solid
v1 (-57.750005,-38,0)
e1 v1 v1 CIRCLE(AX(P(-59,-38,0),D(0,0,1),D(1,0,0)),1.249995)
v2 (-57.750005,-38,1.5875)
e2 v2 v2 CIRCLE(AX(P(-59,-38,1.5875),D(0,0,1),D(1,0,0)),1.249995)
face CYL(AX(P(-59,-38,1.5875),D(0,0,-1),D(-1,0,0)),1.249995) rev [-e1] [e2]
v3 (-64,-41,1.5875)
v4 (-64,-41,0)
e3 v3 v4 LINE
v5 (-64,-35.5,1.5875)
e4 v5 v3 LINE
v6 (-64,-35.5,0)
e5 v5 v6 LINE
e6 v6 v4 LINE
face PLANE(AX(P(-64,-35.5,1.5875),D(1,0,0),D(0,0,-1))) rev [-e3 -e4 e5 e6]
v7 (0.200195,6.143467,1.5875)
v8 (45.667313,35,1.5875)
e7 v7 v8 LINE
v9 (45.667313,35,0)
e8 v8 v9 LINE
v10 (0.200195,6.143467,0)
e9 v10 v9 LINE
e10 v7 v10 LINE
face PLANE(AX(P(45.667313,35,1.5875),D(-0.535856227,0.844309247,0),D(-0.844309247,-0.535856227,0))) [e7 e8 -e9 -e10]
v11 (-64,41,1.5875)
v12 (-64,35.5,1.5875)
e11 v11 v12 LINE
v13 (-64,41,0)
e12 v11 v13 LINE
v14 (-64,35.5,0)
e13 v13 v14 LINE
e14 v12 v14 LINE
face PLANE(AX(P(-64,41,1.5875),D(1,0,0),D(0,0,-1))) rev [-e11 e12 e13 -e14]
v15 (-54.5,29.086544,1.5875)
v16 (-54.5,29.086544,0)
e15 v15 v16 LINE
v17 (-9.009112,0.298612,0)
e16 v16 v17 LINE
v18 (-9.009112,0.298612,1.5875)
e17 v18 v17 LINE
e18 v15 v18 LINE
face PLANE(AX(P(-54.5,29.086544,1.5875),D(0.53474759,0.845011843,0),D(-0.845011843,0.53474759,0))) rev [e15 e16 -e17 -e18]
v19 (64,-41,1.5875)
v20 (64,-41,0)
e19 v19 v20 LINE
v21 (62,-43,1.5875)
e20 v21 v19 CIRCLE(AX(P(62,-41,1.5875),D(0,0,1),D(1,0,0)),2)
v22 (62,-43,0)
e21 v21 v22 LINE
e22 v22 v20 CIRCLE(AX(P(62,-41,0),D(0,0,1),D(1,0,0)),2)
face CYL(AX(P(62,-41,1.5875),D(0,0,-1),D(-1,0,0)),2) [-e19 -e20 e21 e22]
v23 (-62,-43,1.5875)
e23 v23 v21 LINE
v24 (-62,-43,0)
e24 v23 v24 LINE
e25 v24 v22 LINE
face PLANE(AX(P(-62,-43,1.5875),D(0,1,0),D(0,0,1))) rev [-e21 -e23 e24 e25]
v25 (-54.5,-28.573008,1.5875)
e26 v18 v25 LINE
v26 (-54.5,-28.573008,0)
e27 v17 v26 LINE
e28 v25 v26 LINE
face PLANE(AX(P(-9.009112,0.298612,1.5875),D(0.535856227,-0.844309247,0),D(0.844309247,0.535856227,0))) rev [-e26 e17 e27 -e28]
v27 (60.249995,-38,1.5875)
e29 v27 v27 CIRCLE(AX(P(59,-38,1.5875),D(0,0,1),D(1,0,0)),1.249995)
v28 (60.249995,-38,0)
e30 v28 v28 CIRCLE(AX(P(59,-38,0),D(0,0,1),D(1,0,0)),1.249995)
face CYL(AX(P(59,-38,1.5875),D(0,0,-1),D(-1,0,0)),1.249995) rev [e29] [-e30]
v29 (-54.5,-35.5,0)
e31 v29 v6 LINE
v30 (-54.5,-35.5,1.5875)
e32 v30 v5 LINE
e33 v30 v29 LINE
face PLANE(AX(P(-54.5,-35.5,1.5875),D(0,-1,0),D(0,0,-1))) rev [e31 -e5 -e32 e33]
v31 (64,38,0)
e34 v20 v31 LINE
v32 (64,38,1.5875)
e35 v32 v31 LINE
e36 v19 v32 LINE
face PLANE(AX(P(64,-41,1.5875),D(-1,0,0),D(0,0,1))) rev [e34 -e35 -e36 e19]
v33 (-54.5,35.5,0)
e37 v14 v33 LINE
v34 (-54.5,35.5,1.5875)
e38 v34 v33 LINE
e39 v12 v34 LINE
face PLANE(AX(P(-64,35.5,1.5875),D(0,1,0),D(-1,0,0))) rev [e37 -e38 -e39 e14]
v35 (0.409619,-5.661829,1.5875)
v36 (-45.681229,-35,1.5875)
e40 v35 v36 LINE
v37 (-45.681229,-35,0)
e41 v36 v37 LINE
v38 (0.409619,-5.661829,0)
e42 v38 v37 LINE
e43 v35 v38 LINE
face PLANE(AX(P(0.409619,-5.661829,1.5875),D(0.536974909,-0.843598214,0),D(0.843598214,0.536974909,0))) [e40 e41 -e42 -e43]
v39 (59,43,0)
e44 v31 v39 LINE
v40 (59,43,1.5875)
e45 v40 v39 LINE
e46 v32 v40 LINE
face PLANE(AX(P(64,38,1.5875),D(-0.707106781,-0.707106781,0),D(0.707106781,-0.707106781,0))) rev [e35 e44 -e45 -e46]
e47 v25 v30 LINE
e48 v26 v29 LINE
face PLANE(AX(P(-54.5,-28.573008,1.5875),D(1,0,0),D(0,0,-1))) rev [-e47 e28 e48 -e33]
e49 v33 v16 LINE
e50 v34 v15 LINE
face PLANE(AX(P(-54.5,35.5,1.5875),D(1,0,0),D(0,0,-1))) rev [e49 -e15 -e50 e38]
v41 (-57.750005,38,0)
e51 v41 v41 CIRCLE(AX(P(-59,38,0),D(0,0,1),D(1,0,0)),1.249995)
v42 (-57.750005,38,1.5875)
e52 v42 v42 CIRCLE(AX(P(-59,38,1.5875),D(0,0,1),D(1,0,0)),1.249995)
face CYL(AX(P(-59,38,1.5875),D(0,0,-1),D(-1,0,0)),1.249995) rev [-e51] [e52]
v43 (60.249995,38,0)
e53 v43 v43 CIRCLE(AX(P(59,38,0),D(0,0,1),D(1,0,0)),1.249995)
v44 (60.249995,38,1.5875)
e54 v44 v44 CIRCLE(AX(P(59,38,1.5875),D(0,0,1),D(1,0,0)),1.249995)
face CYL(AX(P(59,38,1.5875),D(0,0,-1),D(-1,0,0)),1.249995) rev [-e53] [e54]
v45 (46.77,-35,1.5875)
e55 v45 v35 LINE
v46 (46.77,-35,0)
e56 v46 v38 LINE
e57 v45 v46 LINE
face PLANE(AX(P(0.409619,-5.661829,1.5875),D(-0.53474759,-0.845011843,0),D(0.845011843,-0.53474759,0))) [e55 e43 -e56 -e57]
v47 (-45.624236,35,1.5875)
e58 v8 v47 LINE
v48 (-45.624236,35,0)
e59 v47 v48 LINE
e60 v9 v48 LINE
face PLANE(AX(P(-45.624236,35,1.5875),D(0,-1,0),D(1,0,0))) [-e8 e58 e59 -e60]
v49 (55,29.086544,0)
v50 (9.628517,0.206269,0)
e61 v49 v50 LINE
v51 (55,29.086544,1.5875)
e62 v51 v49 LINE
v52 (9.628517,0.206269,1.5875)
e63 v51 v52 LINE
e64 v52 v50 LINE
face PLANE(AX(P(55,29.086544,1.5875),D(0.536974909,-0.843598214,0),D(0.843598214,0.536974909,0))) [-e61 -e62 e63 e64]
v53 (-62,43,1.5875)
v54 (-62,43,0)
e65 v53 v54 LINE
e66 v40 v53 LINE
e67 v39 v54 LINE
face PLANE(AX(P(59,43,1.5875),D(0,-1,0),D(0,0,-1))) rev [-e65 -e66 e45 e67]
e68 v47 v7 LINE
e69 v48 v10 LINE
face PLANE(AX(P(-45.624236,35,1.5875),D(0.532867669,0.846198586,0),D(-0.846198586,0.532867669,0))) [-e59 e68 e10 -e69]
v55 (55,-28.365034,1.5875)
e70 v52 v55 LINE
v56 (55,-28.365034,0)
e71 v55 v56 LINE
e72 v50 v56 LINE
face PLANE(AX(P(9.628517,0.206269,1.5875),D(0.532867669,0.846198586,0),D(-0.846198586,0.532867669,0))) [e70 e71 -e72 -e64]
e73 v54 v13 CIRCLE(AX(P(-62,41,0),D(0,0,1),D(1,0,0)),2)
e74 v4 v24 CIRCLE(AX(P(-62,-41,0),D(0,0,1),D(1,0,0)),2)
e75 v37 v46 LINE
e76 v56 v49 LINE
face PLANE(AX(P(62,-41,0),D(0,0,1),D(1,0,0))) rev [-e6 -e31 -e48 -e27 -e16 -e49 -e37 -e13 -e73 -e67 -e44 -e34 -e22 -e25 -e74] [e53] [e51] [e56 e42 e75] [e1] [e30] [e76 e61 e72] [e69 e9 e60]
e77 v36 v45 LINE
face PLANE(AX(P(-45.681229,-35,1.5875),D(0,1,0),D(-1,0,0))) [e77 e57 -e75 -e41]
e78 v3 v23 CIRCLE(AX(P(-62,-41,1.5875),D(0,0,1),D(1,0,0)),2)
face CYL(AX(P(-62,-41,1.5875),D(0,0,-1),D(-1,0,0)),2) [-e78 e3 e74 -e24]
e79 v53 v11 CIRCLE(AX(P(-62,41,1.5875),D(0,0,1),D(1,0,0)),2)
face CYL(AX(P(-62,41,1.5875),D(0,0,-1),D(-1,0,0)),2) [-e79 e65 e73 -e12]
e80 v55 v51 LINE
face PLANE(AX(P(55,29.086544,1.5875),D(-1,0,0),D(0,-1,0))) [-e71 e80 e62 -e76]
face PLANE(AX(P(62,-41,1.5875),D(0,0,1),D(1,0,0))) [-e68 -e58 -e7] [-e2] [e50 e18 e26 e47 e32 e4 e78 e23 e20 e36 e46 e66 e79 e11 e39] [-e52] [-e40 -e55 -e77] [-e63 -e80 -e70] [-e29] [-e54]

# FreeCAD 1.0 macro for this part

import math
import FreeCAD as App
import Part
import Sketcher
from FreeCAD import Vector
Q = App.Units.Quantity


def add_polygon(sketch, points):
    """Adds a closed chain of lines whose ends are joined by coincident constraints."""
    first, n = sketch.GeometryCount, len(points)
    for a, b in zip(points, points[1:] + points[:1]):
        sketch.addGeometry(Part.LineSegment(App.Vector(*a, 0), App.Vector(*b, 0)), False)
    for i in range(n):
        sketch.addConstraint(Sketcher.Constraint("Coincident", first + i, 2, first + (i + 1) % n, 1))

doc = App.newDocument("Part")
body = doc.addObject("PartDesign::Body", "Body")

# Sketch on XY plane
sketch1 = body.newObject("Sketcher::SketchObject", "Sketch")
sketch1.AttachmentSupport = (doc.getObject("XY_Plane"), [""])
sketch1.MapMode = "FlatFace"
sketch1.addGeometry(Part.LineSegment(Vector(64, -41, 0), Vector(64, 38, 0)), False)  # 0
sketch1.addGeometry(Part.LineSegment(Vector(64, 38, 0), Vector(59, 43, 0)), False)  # 1
sketch1.addGeometry(Part.LineSegment(Vector(59, 43, 0), Vector(-62, 43, 0)), False)  # 2
sketch1.addGeometry(Part.ArcOfCircle(Part.Circle(Vector(-62, 41, 0), Vector(0, 0, 1), 2), math.radians(90), math.radians(180)), False)  # 3
sketch1.addGeometry(Part.LineSegment(Vector(-64, 41, 0), Vector(-64, 35.5, 0)), False)  # 4
sketch1.addGeometry(Part.LineSegment(Vector(-64, 35.5, 0), Vector(-54.5, 35.5, 0)), False)  # 5
sketch1.addGeometry(Part.LineSegment(Vector(-54.5, 35.5, 0), Vector(-54.5, 29.1, 0)), False)  # 6
sketch1.addGeometry(Part.LineSegment(Vector(-54.5, 29.1, 0), Vector(-9, 0.3, 0)), False)  # 7
sketch1.addGeometry(Part.LineSegment(Vector(-9, 0.3, 0), Vector(-54.5, -28.6, 0)), False)  # 8
sketch1.addGeometry(Part.LineSegment(Vector(-54.5, -28.6, 0), Vector(-54.5, -35.5, 0)), False)  # 9
sketch1.addGeometry(Part.LineSegment(Vector(-54.5, -35.5, 0), Vector(-64, -35.5, 0)), False)  # 10
sketch1.addGeometry(Part.LineSegment(Vector(-64, -35.5, 0), Vector(-64, -41, 0)), False)  # 11
sketch1.addGeometry(Part.ArcOfCircle(Part.Circle(Vector(-62, -41, 0), Vector(0, 0, 1), 2), math.radians(-180), math.radians(-90)), False)  # 12
sketch1.addGeometry(Part.LineSegment(Vector(-62, -43, 0), Vector(62, -43, 0)), False)  # 13
sketch1.addGeometry(Part.ArcOfCircle(Part.Circle(Vector(62, -41, 0), Vector(0, 0, 1), 2), math.radians(-90), math.radians(0)), False)  # 14
sketch1.addGeometry(Part.Circle(Vector(-59, -38, 0), Vector(0, 0, 1), 1.2), False)  # 15
add_polygon(sketch1, [(46.8, -35), (-45.7, -35), (0.4, -5.7)])  # lines 16-18
sketch1.addGeometry(Part.Circle(Vector(59, -38, 0), Vector(0, 0, 1), 1.2), False)  # 19
sketch1.addGeometry(Part.Circle(Vector(-59, 38, 0), Vector(0, 0, 1), 1.2), False)  # 20
add_polygon(sketch1, [(9.6, 0.2), (55, 29.1), (55, -28.4)])  # lines 21-23
add_polygon(sketch1, [(0.2, 6.1), (-45.6, 35), (45.7, 35)])  # lines 24-26
sketch1.addGeometry(Part.Circle(Vector(59, 38, 0), Vector(0, 0, 1), 1.2), False)  # 27
sketch1.addConstraint([
    Sketcher.Constraint("Coincident", 0, 2, 1, 1),
    Sketcher.Constraint("Coincident", 1, 2, 2, 1),
    Sketcher.Constraint("Tangent", 2, 2, 3, 1),
    Sketcher.Constraint("Tangent", 3, 2, 4, 1),
    Sketcher.Constraint("Coincident", 4, 2, 5, 1),
    Sketcher.Constraint("Coincident", 5, 2, 6, 1),
    Sketcher.Constraint("Coincident", 6, 2, 7, 1),
    Sketcher.Constraint("Coincident", 7, 2, 8, 1),
    Sketcher.Constraint("Coincident", 8, 2, 9, 1),
    Sketcher.Constraint("Coincident", 9, 2, 10, 1),
    Sketcher.Constraint("Coincident", 10, 2, 11, 1),
    Sketcher.Constraint("Tangent", 11, 2, 12, 1),
    Sketcher.Constraint("Tangent", 12, 2, 13, 1),
    Sketcher.Constraint("Tangent", 13, 2, 14, 1),
    Sketcher.Constraint("Tangent", 14, 2, 0, 1),
    Sketcher.Constraint("Vertical", 0),
    Sketcher.Constraint("Horizontal", 2),
    Sketcher.Constraint("Vertical", 4),
    Sketcher.Constraint("Horizontal", 5),
    Sketcher.Constraint("Vertical", 6),
    Sketcher.Constraint("Vertical", 9),
    Sketcher.Constraint("Horizontal", 10),
    Sketcher.Constraint("Vertical", 11),
    Sketcher.Constraint("Horizontal", 13),
    Sketcher.Constraint("Horizontal", 16),
    Sketcher.Constraint("Vertical", 22),
    Sketcher.Constraint("Horizontal", 25),
    Sketcher.Constraint("Equal", 3, 12),
    Sketcher.Constraint("Equal", 12, 14),
    Sketcher.Constraint("Equal", 15, 19),
    Sketcher.Constraint("Equal", 19, 20),
    Sketcher.Constraint("Equal", 20, 27),
    Sketcher.Constraint("Symmetric", 3, 3, 14, 3, -1, 1),
    Sketcher.Constraint("Symmetric", 19, 3, 20, 3, -1, 1),
    Sketcher.Constraint("Symmetric", 15, 3, 27, 3, -1, 1),
    Sketcher.Constraint("Symmetric", 15, 3, 19, 3, -2),
    Sketcher.Constraint("Symmetric", 5, 2, 9, 2, -1),
    Sketcher.Constraint("Parallel", 7, 18),
    Sketcher.Constraint("Parallel", 17, 21),
    Sketcher.Constraint("Parallel", 23, 24),
    Sketcher.Constraint("Parallel", 8, 26),
    Sketcher.Constraint("Horizontal", 27, 3, 0, 2),
    Sketcher.Constraint("Horizontal", 6, 2, 21, 2),
    Sketcher.Constraint("Vertical", 3, 3, 12, 3),
    Sketcher.Constraint("Vertical", 27, 3, 1, 2),
    Sketcher.Constraint("Radius", 3, 2.0),
    Sketcher.Constraint("DistanceX", 2, 2, 2, 1, 121.0),
    Sketcher.Constraint("DistanceX", 13, 1, 13, 2, 124.0),
    Sketcher.Constraint("DistanceY", 0, 1, 0, 2, 79.0),
    Sketcher.Constraint("Angle", 1, Q("135 deg")),
    Sketcher.Constraint("DistanceX", 5, 1, 5, 2, 9.5),
    Sketcher.Constraint("DistanceY", 4, 2, 4, 1, 5.5),
    Sketcher.Constraint("DistanceY", 16, 2, -1, 1, 35.0),
    Sketcher.Constraint("DistanceX", -1, 1, 21, 2, 55.0),
    Sketcher.Constraint("DistanceY", -1, 1, 24, 2, 35.0),
    Sketcher.Constraint("Diameter", 15, 2.49999),
    Sketcher.Constraint("DistanceX", -1, 1, 18, 2, 46.77),
    Sketcher.Constraint("DistanceX", 16, 2, 16, 1, 92.451229),
    Sketcher.Constraint("DistanceX", 25, 1, 25, 2, 91.291549),
    Sketcher.Constraint("DistanceX", 17, 2, 23, 2, 9.218898),
    Sketcher.Constraint("DistanceY", 17, 2, 23, 2, 5.868098),
    Sketcher.Constraint("Distance", 17, 54.636019),
    Sketcher.Constraint("Distance", 23, 53.618008),
    Sketcher.Constraint("Distance", 26, 53.851261),
    Sketcher.Constraint("DistanceY", 6, 2, 6, 1, 6.413456),
    Sketcher.Constraint("DistanceY", 9, 2, 9, 1, 6.926992),
    Sketcher.Constraint("DistanceX", 26, 2, 23, 2, 9.428322),
])
pad1 = body.newObject("PartDesign::Pad", "Pad")
pad1.Profile = sketch1
pad1.Length = 1.5875

doc.recompute()
